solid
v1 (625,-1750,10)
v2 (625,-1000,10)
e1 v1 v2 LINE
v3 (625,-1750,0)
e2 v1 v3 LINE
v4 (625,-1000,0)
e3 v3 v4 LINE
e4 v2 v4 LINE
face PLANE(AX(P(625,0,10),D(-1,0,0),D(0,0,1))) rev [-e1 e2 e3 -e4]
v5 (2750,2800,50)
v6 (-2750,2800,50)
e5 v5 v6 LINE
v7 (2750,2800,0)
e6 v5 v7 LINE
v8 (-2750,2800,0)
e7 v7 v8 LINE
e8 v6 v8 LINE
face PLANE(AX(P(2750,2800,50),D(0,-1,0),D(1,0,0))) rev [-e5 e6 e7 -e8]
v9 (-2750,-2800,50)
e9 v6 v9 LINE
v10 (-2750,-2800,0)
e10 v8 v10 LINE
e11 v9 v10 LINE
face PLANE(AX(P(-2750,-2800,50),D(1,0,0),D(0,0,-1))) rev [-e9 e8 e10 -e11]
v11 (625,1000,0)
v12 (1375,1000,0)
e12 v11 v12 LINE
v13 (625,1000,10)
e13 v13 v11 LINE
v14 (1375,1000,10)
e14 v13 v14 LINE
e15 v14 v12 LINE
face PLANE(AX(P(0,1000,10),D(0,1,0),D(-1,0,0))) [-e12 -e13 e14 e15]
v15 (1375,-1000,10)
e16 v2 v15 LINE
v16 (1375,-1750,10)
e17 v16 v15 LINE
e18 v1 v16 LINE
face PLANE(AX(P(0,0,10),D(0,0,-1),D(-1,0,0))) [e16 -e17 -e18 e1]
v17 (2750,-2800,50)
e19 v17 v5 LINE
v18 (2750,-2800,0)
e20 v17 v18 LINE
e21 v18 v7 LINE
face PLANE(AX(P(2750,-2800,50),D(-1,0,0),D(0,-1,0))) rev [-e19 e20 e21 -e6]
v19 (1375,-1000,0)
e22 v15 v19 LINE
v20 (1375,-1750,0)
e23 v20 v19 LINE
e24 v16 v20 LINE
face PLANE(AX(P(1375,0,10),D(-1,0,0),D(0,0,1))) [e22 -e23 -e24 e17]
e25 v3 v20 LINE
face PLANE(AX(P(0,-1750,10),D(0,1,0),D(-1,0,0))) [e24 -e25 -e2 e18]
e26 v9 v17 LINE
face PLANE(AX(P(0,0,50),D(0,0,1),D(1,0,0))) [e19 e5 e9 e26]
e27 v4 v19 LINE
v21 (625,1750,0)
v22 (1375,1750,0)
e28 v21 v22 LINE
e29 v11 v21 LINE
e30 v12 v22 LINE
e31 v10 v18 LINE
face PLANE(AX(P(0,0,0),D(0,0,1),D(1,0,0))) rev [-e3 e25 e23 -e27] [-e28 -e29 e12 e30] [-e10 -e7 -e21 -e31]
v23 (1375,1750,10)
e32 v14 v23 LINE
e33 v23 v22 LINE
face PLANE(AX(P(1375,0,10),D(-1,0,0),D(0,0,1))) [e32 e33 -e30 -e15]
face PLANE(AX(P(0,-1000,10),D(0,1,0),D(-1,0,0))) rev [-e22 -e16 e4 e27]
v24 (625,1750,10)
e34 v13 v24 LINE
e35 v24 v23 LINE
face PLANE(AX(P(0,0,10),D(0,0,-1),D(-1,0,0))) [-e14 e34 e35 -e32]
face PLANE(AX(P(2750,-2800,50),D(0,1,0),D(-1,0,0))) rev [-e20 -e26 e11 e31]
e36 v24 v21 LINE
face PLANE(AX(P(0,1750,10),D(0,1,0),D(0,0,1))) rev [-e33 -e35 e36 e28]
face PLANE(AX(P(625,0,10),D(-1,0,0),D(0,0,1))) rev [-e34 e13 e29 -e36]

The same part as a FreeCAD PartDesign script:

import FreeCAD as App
import Part
import Sketcher

V = App.Vector


def add_polygon(sketch, points):
    """Adds a closed chain of lines whose ends are joined by coincident constraints."""
    first, n = sketch.GeometryCount, len(points)
    for a, b in zip(points, points[1:] + points[:1]):
        sketch.addGeometry(Part.LineSegment(App.Vector(*a, 0), App.Vector(*b, 0)), False)
    for i in range(n):
        sketch.addConstraint(Sketcher.Constraint("Coincident", first + i, 2, first + (i + 1) % n, 1))

doc = App.newDocument("Part")
params = doc.addObject("Spreadsheet::Sheet", "Params")
for row, (alias, value) in enumerate([
    ("sketch1_width", "5500 mm"),
    ("sketch1_height", "5600 mm"),
    ("pad1_length", "50 mm"),
    ("sketch2_width", "750 mm"),
    ("pocket1_length", "10 mm"),
], start=1):
    params.set(f"A{row}", alias)
    params.set(f"B{row}", "=" + value)
    params.setAlias(f"B{row}", alias)

body = doc.addObject("PartDesign::Body", "Body")

sketch1 = doc.addObject("Sketcher::SketchObject", "Sketch")
body.addObject(sketch1)
sketch1.AttachmentSupport = (doc.XY_Plane, [""])
sketch1.MapMode = "FlatFace"
add_polygon(sketch1, [(-2750, 2800), (-2750, -2800), (2750, -2800), (2750, 2800)])
sketch1.addConstraint([
    Sketcher.Constraint("Vertical", 0),
    Sketcher.Constraint("Horizontal", 1),
    Sketcher.Constraint("Vertical", 2),
    Sketcher.Constraint("Horizontal", 3),
    Sketcher.Constraint("Symmetric", 0, 2, 2, 2, -1, 1),
    Sketcher.Constraint("DistanceX", 1, 1, 1, 2, 5500.0),
    Sketcher.Constraint("DistanceY", 0, 2, 0, 1, 5600.0),
])
sketch1.setExpression("Constraints[9]", "Params.sketch1_width")
sketch1.setExpression("Constraints[10]", "Params.sketch1_height")
pad1 = doc.addObject("PartDesign::Pad", "Pad")
body.addObject(pad1)
pad1.Profile = sketch1
pad1.setExpression("Length", "Params.pad1_length")

sketch2 = doc.addObject("Sketcher::SketchObject", "Sketch001")
body.addObject(sketch2)
sketch2.AttachmentSupport = (doc.XY_Plane, [""])
sketch2.MapMode = "FlatFace"
add_polygon(sketch2, [(1375, 1750), (1375, 1000), (625, 1000), (625, 1750)])
add_polygon(sketch2, [(1375, -1750), (625, -1750), (625, -1000), (1375, -1000)])
sketch2.addConstraint([
    Sketcher.Constraint("Vertical", 0),
    Sketcher.Constraint("Horizontal", 1),
    Sketcher.Constraint("Vertical", 2),
    Sketcher.Constraint("Horizontal", 3),
    Sketcher.Constraint("Horizontal", 4),
    Sketcher.Constraint("Vertical", 5),
    Sketcher.Constraint("Horizontal", 6),
    Sketcher.Constraint("Vertical", 7),
    Sketcher.Constraint("Symmetric", 2, 2, 4, 2, -1),
    Sketcher.Constraint("Symmetric", 0, 2, 6, 2, -1),
    Sketcher.Constraint("Equal", 6, 0),
    Sketcher.Constraint("DistanceX", 1, 2, 1, 1, 750.0),
    Sketcher.Constraint("DistanceX", -1, 1, 0, 2, 1375.0),
    Sketcher.Constraint("DistanceY", -1, 1, 0, 2, 1000.0),
])
sketch2.setExpression("Constraints[19]", "Params.sketch2_width")
pocket1 = doc.addObject("PartDesign::Pocket", "Pocket")
body.addObject(pocket1)
pocket1.Profile = sketch2
pocket1.setExpression("Length", "Params.pocket1_length")
pocket1.Reversed = True

doc.recompute()
